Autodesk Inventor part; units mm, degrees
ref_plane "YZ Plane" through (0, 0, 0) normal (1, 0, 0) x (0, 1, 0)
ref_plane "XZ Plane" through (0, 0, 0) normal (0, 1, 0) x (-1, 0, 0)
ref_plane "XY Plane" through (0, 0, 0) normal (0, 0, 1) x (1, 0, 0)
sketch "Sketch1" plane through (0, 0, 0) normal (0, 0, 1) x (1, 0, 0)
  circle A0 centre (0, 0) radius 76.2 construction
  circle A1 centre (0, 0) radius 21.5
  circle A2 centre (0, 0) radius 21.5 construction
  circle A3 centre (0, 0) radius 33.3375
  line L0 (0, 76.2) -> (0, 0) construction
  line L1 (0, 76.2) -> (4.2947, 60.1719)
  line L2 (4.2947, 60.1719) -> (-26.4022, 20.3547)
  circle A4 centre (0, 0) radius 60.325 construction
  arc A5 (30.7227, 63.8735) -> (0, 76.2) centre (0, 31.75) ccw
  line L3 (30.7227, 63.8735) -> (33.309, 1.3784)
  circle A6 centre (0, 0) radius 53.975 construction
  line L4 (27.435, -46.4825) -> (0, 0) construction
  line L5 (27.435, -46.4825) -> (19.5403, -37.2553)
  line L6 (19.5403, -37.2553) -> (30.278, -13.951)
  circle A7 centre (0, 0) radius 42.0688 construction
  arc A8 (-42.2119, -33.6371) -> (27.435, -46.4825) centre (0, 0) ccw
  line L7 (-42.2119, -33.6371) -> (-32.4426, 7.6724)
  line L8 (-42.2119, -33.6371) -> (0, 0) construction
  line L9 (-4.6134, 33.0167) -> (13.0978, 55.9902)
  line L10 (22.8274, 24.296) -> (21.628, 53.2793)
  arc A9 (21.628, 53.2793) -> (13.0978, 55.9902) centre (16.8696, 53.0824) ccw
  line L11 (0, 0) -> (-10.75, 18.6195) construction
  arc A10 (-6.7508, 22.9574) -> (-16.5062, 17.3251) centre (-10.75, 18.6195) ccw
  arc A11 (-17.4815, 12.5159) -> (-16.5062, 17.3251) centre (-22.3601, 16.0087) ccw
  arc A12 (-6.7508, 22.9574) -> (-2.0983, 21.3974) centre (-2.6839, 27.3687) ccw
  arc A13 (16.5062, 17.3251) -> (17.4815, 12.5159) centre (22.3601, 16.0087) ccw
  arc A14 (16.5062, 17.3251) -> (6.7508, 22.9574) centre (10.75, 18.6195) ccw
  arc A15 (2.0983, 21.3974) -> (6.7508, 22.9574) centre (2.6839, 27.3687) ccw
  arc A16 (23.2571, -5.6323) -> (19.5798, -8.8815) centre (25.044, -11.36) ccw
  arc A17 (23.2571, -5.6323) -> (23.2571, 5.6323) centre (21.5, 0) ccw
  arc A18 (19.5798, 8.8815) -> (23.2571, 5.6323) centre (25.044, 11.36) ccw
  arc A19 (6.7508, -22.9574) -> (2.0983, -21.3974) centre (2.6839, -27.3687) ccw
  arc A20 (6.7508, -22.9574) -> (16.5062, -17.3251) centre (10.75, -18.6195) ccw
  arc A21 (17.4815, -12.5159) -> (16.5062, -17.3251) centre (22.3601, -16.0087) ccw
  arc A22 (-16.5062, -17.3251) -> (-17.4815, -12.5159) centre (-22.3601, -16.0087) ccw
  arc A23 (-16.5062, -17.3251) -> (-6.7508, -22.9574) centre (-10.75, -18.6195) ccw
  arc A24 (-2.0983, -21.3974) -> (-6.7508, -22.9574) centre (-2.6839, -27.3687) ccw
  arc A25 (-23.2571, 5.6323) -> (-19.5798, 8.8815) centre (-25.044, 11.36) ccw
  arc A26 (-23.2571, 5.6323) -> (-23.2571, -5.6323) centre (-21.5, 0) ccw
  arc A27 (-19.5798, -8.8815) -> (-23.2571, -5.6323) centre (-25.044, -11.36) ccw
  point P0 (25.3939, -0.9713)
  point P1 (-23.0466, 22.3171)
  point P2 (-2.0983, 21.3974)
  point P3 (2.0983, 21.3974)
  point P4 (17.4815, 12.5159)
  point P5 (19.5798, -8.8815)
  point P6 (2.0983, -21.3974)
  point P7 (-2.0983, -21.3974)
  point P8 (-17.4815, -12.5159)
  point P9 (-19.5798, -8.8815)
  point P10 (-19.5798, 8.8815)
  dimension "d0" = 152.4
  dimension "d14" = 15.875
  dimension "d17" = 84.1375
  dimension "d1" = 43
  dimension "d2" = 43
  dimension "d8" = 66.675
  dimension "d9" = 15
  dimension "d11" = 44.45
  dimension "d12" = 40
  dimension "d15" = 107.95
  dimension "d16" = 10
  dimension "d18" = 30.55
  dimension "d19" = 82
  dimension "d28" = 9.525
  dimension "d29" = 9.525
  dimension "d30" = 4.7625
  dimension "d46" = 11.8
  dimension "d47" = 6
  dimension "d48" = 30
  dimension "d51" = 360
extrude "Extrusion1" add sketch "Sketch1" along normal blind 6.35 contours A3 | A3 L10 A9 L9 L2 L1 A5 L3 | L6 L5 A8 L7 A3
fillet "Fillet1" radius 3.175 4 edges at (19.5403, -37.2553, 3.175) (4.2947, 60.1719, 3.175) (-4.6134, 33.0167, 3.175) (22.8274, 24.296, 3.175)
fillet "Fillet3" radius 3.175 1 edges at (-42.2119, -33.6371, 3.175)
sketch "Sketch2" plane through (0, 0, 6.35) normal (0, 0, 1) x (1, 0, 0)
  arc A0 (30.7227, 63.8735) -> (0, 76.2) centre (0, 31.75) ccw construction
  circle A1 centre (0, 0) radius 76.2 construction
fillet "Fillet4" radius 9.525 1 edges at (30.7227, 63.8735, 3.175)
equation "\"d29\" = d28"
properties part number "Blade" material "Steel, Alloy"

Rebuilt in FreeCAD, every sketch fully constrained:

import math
import FreeCAD as App
import Part
import Sketcher
Q = App.Units.Quantity


def edges_at(feature, points):
    """Names of the edges that pass closest to the given points."""
    edges = feature.Shape.Edges
    near = lambda p: min(range(len(edges)), key=lambda i: edges[i].distToShape(Part.Vertex(*p))[0])
    return sorted({f"Edge{near(p) + 1}" for p in points})

doc = App.newDocument("Part")
body = doc.addObject("PartDesign::Body", "Body")

sketch1 = doc.addObject("Sketcher::SketchObject", "Sketch")
body.addObject(sketch1)
sketch1.AttachmentSupport = (doc.XY_Plane, [""])
sketch1.MapMode = "FlatFace"
sketch1.addGeometry([
    Part.ArcOfCircle(Part.Circle(App.Vector(0, 0, 0), App.Vector(0, 0, 1), 33.3375), math.radians(-24.738529), math.radians(2.369674)),
    Part.LineSegment(App.Vector(33.309, 1.3784, 0), App.Vector(30.7227, 63.8735, 0)),
    Part.ArcOfCircle(Part.Circle(App.Vector(0, 31.75, 0), App.Vector(0, 0, 1), 44.450012), math.radians(46.276873), math.radians(90)),
    Part.LineSegment(App.Vector(0, 76.2, 0), App.Vector(4.2947, 60.1719, 0)),
    Part.LineSegment(App.Vector(4.2947, 60.1719, 0), App.Vector(-26.4022, 20.3547, 0)),
    Part.ArcOfCircle(Part.Circle(App.Vector(0, 0, 0), App.Vector(0, 0, 1), 33.3375), math.radians(142.369677), math.radians(166.69449)),
    Part.LineSegment(App.Vector(-32.4426, 7.6724, 0), App.Vector(-42.2119, -33.6371, 0)),
    Part.ArcOfCircle(Part.Circle(App.Vector(0, 0, 0), App.Vector(0, 0, 1), 53.975), math.radians(-141.449956), math.radians(-59.449955)),
    Part.LineSegment(App.Vector(27.435, -46.4825, 0), App.Vector(19.5403, -37.2553, 0)),
    Part.LineSegment(App.Vector(19.5403, -37.2553, 0), App.Vector(30.278, -13.951, 0)),
    Part.ArcOfCircle(Part.Circle(App.Vector(0, 0, 0), App.Vector(0, 0, 1), 33.3375), math.radians(46.785044), math.radians(97.954397)),
    Part.LineSegment(App.Vector(-4.6134, 33.0167, 0), App.Vector(13.0978, 55.9902, 0)),
    Part.ArcOfCircle(Part.Circle(App.Vector(16.8696, 53.0824, 0), App.Vector(0, 0, 1), 4.762472), math.radians(2.369516), math.radians(142.370233)),
    Part.LineSegment(App.Vector(21.628, 53.2793, 0), App.Vector(22.8274, 24.296, 0)),
    Part.ArcOfCircle(Part.Circle(App.Vector(0, 0, 0), App.Vector(0, 0, 1), 21.5), math.radians(24.399293), math.radians(35.600813)),
    Part.ArcOfCircle(Part.Circle(App.Vector(25.044, 11.36, 0), App.Vector(0, 0, 1), 6.000037), math.radians(-155.601488), math.radians(-107.326624)),
    Part.ArcOfCircle(Part.Circle(App.Vector(21.5, 0, 0), App.Vector(0, 0, 1), 5.900017), math.radians(-72.673725), math.radians(72.673725)),
    Part.ArcOfCircle(Part.Circle(App.Vector(25.044, -11.36, 0), App.Vector(0, 0, 1), 5.999963), math.radians(107.326624), math.radians(155.601488)),
    Part.ArcOfCircle(Part.Circle(App.Vector(0, 0, 0), App.Vector(0, 0, 1), 21.5), math.radians(-35.600813), math.radians(-24.399293)),
    Part.ArcOfCircle(Part.Circle(App.Vector(22.3601, -16.0087, 0), App.Vector(0, 0, 1), 6.000032), math.radians(144.399492), math.radians(192.673606)),
    Part.ArcOfCircle(Part.Circle(App.Vector(10.75, -18.6195, 0), App.Vector(0, 0, 1), 5.900083), math.radians(-132.673602), math.radians(12.673325)),
    Part.ArcOfCircle(Part.Circle(App.Vector(2.6839, -27.3687, 0), App.Vector(0, 0, 1), 5.999937), math.radians(47.32618), math.radians(95.601035)),
    Part.ArcOfCircle(Part.Circle(App.Vector(0, 0, 0), App.Vector(0, 0, 1), 21.5), math.radians(-95.600707), math.radians(-84.399293)),
    Part.ArcOfCircle(Part.Circle(App.Vector(-2.6839, -27.3687, 0), App.Vector(0, 0, 1), 5.999946), math.radians(84.398965), math.radians(132.67382)),
    Part.ArcOfCircle(Part.Circle(App.Vector(-10.75, -18.6195, 0), App.Vector(0, 0, 1), 5.899942), math.radians(167.326675), math.radians(312.673602)),
    Part.ArcOfCircle(Part.Circle(App.Vector(-22.3601, -16.0087, 0), App.Vector(0, 0, 1), 6.000088), math.radians(-12.673606), math.radians(35.600508)),
    Part.ArcOfCircle(Part.Circle(App.Vector(0, 0, 0), App.Vector(0, 0, 1), 21.5), math.radians(-155.600707), math.radians(-144.399187)),
    Part.ArcOfCircle(Part.Circle(App.Vector(-25.044, -11.36, 0), App.Vector(0, 0, 1), 6.000037), math.radians(24.398512), math.radians(72.673376)),
    Part.ArcOfCircle(Part.Circle(App.Vector(-21.5, 0, 0), App.Vector(0, 0, 1), 5.900017), math.radians(107.326275), math.radians(252.673725)),
    Part.ArcOfCircle(Part.Circle(App.Vector(-25.044, 11.36, 0), App.Vector(0, 0, 1), 5.999963), math.radians(-72.673376), math.radians(-24.398512)),
    Part.ArcOfCircle(Part.Circle(App.Vector(0, 0, 0), App.Vector(0, 0, 1), 21.5), math.radians(144.399187), math.radians(155.600707)),
    Part.ArcOfCircle(Part.Circle(App.Vector(-22.3601, 16.0087, 0), App.Vector(0, 0, 1), 6.000032), math.radians(-35.600508), math.radians(12.673606)),
    Part.ArcOfCircle(Part.Circle(App.Vector(-10.75, 18.6195, 0), App.Vector(0, 0, 1), 5.900083), math.radians(47.326398), math.radians(192.673325)),
    Part.ArcOfCircle(Part.Circle(App.Vector(-2.6839, 27.3687, 0), App.Vector(0, 0, 1), 5.999937), math.radians(-132.67382), math.radians(-84.398965)),
    Part.ArcOfCircle(Part.Circle(App.Vector(0, 0, 0), App.Vector(0, 0, 1), 21.5), math.radians(84.399293), math.radians(95.600707)),
    Part.ArcOfCircle(Part.Circle(App.Vector(2.6839, 27.3687, 0), App.Vector(0, 0, 1), 5.999946), math.radians(-95.601035), math.radians(-47.32618)),
    Part.ArcOfCircle(Part.Circle(App.Vector(10.75, 18.6195, 0), App.Vector(0, 0, 1), 5.899942), math.radians(-12.673325), math.radians(132.673602)),
    Part.ArcOfCircle(Part.Circle(App.Vector(22.3601, 16.0087, 0), App.Vector(0, 0, 1), 6.000088), math.radians(167.326394), math.radians(215.600508)),
], False)
sketch1.addConstraint([
    Sketcher.Constraint("Tangent", 0, 2, 1, 1),
    Sketcher.Constraint("Coincident", 1, 2, 2, 1),
    Sketcher.Constraint("Coincident", 2, 2, 3, 1),
    Sketcher.Constraint("Coincident", 3, 2, 4, 1),
    Sketcher.Constraint("Tangent", 4, 2, 5, 1),
    Sketcher.Constraint("Tangent", 5, 2, 6, 1),
    Sketcher.Constraint("Coincident", 6, 2, 7, 1),
    Sketcher.Constraint("Coincident", 7, 2, 8, 1),
    Sketcher.Constraint("Coincident", 8, 2, 9, 1),
    Sketcher.Constraint("Tangent", 9, 2, 0, 1),
    Sketcher.Constraint("Coincident", 10, 2, 11, 1),
    Sketcher.Constraint("Tangent", 11, 2, 12, 2),
    Sketcher.Constraint("Tangent", 12, 1, 13, 1),
    Sketcher.Constraint("Coincident", 13, 2, 10, 1),
    Sketcher.Constraint("Tangent", 14, 1, 15, 1),
    Sketcher.Constraint("Tangent", 15, 2, 16, 2),
    Sketcher.Constraint("Tangent", 16, 1, 17, 1),
    Sketcher.Constraint("Tangent", 17, 2, 18, 2),
    Sketcher.Constraint("Tangent", 18, 1, 19, 1),
    Sketcher.Constraint("Tangent", 19, 2, 20, 2),
    Sketcher.Constraint("Tangent", 20, 1, 21, 1),
    Sketcher.Constraint("Tangent", 21, 2, 22, 2),
    Sketcher.Constraint("Tangent", 22, 1, 23, 1),
    Sketcher.Constraint("Tangent", 23, 2, 24, 2),
    Sketcher.Constraint("Tangent", 24, 1, 25, 1),
    Sketcher.Constraint("Tangent", 25, 2, 26, 2),
    Sketcher.Constraint("Tangent", 26, 1, 27, 1),
    Sketcher.Constraint("Tangent", 27, 2, 28, 2),
    Sketcher.Constraint("Tangent", 28, 1, 29, 1),
    Sketcher.Constraint("Tangent", 29, 2, 30, 2),
    Sketcher.Constraint("Tangent", 30, 1, 31, 1),
    Sketcher.Constraint("Tangent", 31, 2, 32, 2),
    Sketcher.Constraint("Tangent", 32, 1, 33, 1),
    Sketcher.Constraint("Tangent", 33, 2, 34, 2),
    Sketcher.Constraint("Tangent", 34, 1, 35, 1),
    Sketcher.Constraint("Tangent", 35, 2, 36, 2),
    Sketcher.Constraint("Tangent", 36, 1, 37, 1),
    Sketcher.Constraint("Tangent", 37, 2, 14, 2),
    Sketcher.Constraint("Coincident", 0, 3, -1, 1),
    Sketcher.Constraint("Coincident", 5, 3, -1, 1),
    Sketcher.Constraint("Coincident", 7, 3, -1, 1),
    Sketcher.Constraint("Coincident", 10, 3, -1, 1),
    Sketcher.Constraint("Coincident", 14, 3, -1, 1),
    Sketcher.Constraint("Coincident", 18, 3, -1, 1),
    Sketcher.Constraint("Coincident", 22, 3, -1, 1),
    Sketcher.Constraint("Coincident", 26, 3, -1, 1),
    Sketcher.Constraint("Coincident", 30, 3, -1, 1),
    Sketcher.Constraint("Coincident", 34, 3, -1, 1),
    Sketcher.Constraint("Equal", 0, 5),
    Sketcher.Constraint("Equal", 5, 10),
    Sketcher.Constraint("Equal", 15, 17),
    Sketcher.Constraint("Equal", 14, 18),
    Sketcher.Constraint("Equal", 17, 19),
    Sketcher.Constraint("Equal", 16, 20),
    Sketcher.Constraint("Equal", 19, 21),
    Sketcher.Constraint("Equal", 18, 22),
    Sketcher.Constraint("Equal", 21, 23),
    Sketcher.Constraint("Equal", 20, 24),
    Sketcher.Constraint("Equal", 23, 25),
    Sketcher.Constraint("Equal", 22, 26),
    Sketcher.Constraint("Equal", 25, 27),
    Sketcher.Constraint("Equal", 24, 28),
    Sketcher.Constraint("Equal", 27, 29),
    Sketcher.Constraint("Equal", 26, 30),
    Sketcher.Constraint("Equal", 29, 31),
    Sketcher.Constraint("Equal", 28, 32),
    Sketcher.Constraint("Equal", 31, 33),
    Sketcher.Constraint("Equal", 30, 34),
    Sketcher.Constraint("Equal", 33, 35),
    Sketcher.Constraint("Equal", 32, 36),
    Sketcher.Constraint("Equal", 35, 37),
    Sketcher.Constraint("Symmetric", 16, 3, 28, 3, -1, 1),
    Sketcher.Constraint("Symmetric", 20, 3, 32, 3, -1, 1),
    Sketcher.Constraint("Symmetric", 24, 3, 36, 3, -1, 1),
    Sketcher.Constraint("Symmetric", 20, 3, 24, 3, -2),
    Sketcher.Constraint("PointOnObject", 2, 3, -2),
    Sketcher.Constraint("PointOnObject", 16, 3, -1),
    Sketcher.Constraint("PointOnObject", 2, 2, -2),
    Sketcher.Constraint("Parallel", 4, 11),
    Sketcher.Constraint("Parallel", 1, 13),
    Sketcher.Constraint("Equal", 11, 13),
    Sketcher.Constraint("Radius", 15, 6.0),
    Sketcher.Constraint("Radius", 14, 21.5),
    Sketcher.Constraint("Radius", 16, 5.9),
    Sketcher.Constraint("Radius", 2, 44.45),
    Sketcher.Constraint("Radius", 7, 53.975),
    Sketcher.Constraint("Radius", 0, 33.3375),
    Sketcher.Constraint("Radius", 12, 4.7625),
    Sketcher.Constraint("Angle", 3, Q("-75 deg")),
    Sketcher.Constraint("DistanceX", -1, 1, 16, 3, 21.5),
    Sketcher.Constraint("DistanceY", -1, 1, 2, 2, 76.2),
    Sketcher.Constraint("Angle", 1, Q("92.3698 deg")),
    Sketcher.Constraint("Angle", 4, Q("-127.6303 deg")),
    Sketcher.Constraint("Angle", 8, Q("130.55 deg")),
    Sketcher.Constraint("DistanceX", -1, 1, 19, 3, 22.36),
    Sketcher.Constraint("DistanceX", -1, 1, 20, 3, 10.75),
    Sketcher.Constraint("Distance", 9, 25.659),
    Sketcher.Constraint("Distance", 11, 29.008),
    Sketcher.Constraint("DistanceX", 6, 2, -1, 1, 42.212),
    Sketcher.Constraint("DistanceX", -1, 1, 7, 2, 27.435),
])
pad1 = doc.addObject("PartDesign::Pad", "Pad")
body.addObject(pad1)
pad1.Profile = sketch1
pad1.Length = 6.35
doc.recompute()

fillet = doc.addObject("PartDesign::Fillet", "Fillet")
body.addObject(fillet)
fillet.Base = (pad1, edges_at(pad1, [
    (19.54, -37.255, 3.175),
    (4.295, 60.172, 3.175),
    (-4.613, 33.017, 3.175),
    (22.827, 24.296, 3.175),
]))
fillet.Radius = 3.175
doc.recompute()

fillet2 = doc.addObject("PartDesign::Fillet", "Fillet001")
body.addObject(fillet2)
fillet2.Base = (fillet, edges_at(fillet, [(-42.212, -33.637, 3.175)]))
fillet2.Radius = 3.175
doc.recompute()

fillet3 = doc.addObject("PartDesign::Fillet", "Fillet002")
body.addObject(fillet3)
fillet3.Base = (fillet2, edges_at(fillet2, [(30.723, 63.873, 3.175)]))
fillet3.Radius = 9.525

doc.recompute()
